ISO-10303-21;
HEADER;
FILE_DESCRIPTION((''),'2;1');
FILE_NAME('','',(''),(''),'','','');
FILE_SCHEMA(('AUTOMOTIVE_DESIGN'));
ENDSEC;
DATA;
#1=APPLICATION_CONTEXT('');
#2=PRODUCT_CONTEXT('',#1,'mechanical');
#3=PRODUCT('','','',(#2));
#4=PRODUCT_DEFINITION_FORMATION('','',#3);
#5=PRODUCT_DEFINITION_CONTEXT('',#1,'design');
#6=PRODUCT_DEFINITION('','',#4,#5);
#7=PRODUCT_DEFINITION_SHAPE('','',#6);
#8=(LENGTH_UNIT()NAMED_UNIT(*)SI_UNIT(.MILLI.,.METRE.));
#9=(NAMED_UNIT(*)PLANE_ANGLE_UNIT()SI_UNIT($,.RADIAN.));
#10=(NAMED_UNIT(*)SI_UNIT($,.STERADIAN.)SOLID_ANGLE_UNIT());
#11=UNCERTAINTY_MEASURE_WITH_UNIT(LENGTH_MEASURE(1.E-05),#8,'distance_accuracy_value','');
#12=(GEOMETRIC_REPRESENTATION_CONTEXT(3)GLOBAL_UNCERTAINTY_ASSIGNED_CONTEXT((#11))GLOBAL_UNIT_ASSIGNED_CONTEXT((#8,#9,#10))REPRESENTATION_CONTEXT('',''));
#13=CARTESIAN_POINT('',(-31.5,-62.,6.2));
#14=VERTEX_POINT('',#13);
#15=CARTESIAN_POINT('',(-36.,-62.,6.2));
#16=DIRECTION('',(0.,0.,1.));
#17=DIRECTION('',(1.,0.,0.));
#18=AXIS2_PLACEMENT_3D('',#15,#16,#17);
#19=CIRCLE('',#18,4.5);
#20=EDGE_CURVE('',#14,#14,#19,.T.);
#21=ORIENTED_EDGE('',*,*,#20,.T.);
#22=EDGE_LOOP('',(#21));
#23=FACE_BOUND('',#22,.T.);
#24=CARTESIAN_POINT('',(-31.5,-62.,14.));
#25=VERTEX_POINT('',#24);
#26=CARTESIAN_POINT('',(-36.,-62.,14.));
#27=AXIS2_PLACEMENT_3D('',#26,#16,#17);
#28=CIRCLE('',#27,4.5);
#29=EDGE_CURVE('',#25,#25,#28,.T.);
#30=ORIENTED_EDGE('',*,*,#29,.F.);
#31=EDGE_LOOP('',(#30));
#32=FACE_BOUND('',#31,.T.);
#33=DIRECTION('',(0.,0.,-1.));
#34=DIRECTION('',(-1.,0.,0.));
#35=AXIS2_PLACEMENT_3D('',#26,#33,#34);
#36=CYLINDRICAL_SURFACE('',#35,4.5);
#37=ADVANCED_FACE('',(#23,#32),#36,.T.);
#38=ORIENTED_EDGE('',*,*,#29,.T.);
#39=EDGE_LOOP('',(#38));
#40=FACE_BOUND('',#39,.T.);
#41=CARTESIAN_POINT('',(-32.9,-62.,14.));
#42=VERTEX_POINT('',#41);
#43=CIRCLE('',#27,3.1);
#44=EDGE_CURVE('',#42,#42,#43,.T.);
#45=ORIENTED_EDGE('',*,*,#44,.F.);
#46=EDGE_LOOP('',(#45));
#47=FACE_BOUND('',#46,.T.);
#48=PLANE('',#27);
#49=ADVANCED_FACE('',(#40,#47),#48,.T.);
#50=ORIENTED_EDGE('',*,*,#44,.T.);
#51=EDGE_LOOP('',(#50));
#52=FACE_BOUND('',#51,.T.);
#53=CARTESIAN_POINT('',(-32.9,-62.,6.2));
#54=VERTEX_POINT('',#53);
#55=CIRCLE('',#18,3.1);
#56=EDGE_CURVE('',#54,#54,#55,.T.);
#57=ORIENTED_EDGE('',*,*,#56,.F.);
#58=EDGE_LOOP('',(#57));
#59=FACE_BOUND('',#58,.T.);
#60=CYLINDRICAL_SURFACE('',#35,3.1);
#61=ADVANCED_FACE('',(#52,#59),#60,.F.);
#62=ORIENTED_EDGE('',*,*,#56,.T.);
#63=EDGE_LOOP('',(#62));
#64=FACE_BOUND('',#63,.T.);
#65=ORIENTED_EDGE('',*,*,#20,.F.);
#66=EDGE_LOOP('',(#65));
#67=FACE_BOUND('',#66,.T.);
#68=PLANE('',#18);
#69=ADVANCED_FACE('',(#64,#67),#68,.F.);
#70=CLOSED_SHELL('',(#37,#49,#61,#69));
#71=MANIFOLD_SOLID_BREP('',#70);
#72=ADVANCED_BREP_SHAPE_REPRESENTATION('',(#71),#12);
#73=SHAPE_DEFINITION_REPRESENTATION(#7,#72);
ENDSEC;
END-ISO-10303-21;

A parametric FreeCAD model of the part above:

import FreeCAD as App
import Part
import Sketcher

doc = App.newDocument("Part")
body = doc.addObject("PartDesign::Body", "Body")

sketch1 = doc.addObject("Sketcher::SketchObject", "Sketch")
body.addObject(sketch1)
sketch1.AttachmentSupport = (doc.XY_Plane, [""])
sketch1.MapMode = "FlatFace"
sketch1.AttachmentOffset = App.Placement(App.Vector(0, 0, 6.2), App.Rotation())
sketch1.addGeometry(Part.Circle(App.Vector(-36, -62, 0), App.Vector(0, 0, 1), 4.5), False)
sketch1.addGeometry(Part.Circle(App.Vector(-36, -62, 0), App.Vector(0, 0, 1), 3.1), False)
sketch1.addConstraint(Sketcher.Constraint("Coincident", 1, 3, 0, 3))
sketch1.addConstraint(Sketcher.Constraint("Diameter", 0, 9.0))
sketch1.addConstraint(Sketcher.Constraint("Diameter", 1, 6.2))
sketch1.addConstraint(Sketcher.Constraint("DistanceX", 0, 3, -1, 1, 36.0))
sketch1.addConstraint(Sketcher.Constraint("DistanceY", 0, 3, -1, 1, 62.0))
pad1 = doc.addObject("PartDesign::Pad", "Pad")
body.addObject(pad1)
pad1.Profile = sketch1
pad1.Length = 7.8

doc.recompute()
